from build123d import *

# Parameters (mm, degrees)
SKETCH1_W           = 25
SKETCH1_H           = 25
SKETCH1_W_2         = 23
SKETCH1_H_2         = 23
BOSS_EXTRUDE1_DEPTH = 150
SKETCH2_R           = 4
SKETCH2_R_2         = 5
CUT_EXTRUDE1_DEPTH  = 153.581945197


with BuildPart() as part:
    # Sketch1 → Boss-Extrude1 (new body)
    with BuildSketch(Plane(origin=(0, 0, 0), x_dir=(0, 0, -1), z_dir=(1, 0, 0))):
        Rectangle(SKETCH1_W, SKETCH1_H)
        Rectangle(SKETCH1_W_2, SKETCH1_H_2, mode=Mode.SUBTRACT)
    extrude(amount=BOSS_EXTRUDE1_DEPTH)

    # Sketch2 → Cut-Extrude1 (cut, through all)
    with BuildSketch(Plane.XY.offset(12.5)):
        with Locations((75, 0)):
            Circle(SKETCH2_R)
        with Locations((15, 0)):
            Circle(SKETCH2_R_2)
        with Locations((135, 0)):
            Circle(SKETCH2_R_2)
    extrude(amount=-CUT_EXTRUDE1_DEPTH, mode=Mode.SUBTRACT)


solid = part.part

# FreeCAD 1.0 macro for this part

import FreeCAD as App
import Part
import Sketcher
from FreeCAD import Vector
Q = App.Units.Quantity

doc = App.newDocument("Part")
params = doc.addObject("Spreadsheet::Sheet", "Params")
for row, (alias, value) in enumerate([
    ("sketch1_width", "25 mm"),
    ("sketch1_width2", "23 mm"),
    ("pad1_length", "150 mm"),
    ("sketch2_diameter", "8 mm"),
    ("sketch2_diameter2", "10 mm"),
], start=1):
    params.set(f"A{row}", alias)
    params.set(f"B{row}", "=" + value)
    params.setAlias(f"B{row}", alias)

body = doc.addObject("PartDesign::Body", "Body")

sketch1 = doc.addObject("Sketcher::SketchObject", "Sketch")
body.addObject(sketch1)
sketch1.AttachmentSupport = (doc.YZ_Plane, [""])
sketch1.MapMode = "FlatFace"
sketch1.addGeometry(Part.LineSegment(Vector(12.5, 12.5, 0), Vector(-12.5, 12.5, 0)), False)
sketch1.addGeometry(Part.LineSegment(Vector(-12.5, 12.5, 0), Vector(-12.5, -12.5, 0)), False)
sketch1.addGeometry(Part.LineSegment(Vector(-12.5, -12.5, 0), Vector(12.5, -12.5, 0)), False)
sketch1.addGeometry(Part.LineSegment(Vector(12.5, -12.5, 0), Vector(12.5, 12.5, 0)), False)
sketch1.addGeometry(Part.LineSegment(Vector(-11.5, -11.5, 0), Vector(-11.5, 11.5, 0)), False)
sketch1.addGeometry(Part.LineSegment(Vector(-11.5, 11.5, 0), Vector(11.5, 11.5, 0)), False)
sketch1.addGeometry(Part.LineSegment(Vector(11.5, 11.5, 0), Vector(11.5, -11.5, 0)), False)
sketch1.addGeometry(Part.LineSegment(Vector(11.5, -11.5, 0), Vector(-11.5, -11.5, 0)), False)
sketch1.addConstraint(Sketcher.Constraint("Coincident", 0, 2, 1, 1))
sketch1.addConstraint(Sketcher.Constraint("Coincident", 1, 2, 2, 1))
sketch1.addConstraint(Sketcher.Constraint("Coincident", 2, 2, 3, 1))
sketch1.addConstraint(Sketcher.Constraint("Coincident", 3, 2, 0, 1))
sketch1.addConstraint(Sketcher.Constraint("Coincident", 4, 2, 5, 1))
sketch1.addConstraint(Sketcher.Constraint("Coincident", 5, 2, 6, 1))
sketch1.addConstraint(Sketcher.Constraint("Coincident", 6, 2, 7, 1))
sketch1.addConstraint(Sketcher.Constraint("Coincident", 7, 2, 4, 1))
sketch1.addConstraint(Sketcher.Constraint("Horizontal", 0))
sketch1.addConstraint(Sketcher.Constraint("Vertical", 1))
sketch1.addConstraint(Sketcher.Constraint("Horizontal", 2))
sketch1.addConstraint(Sketcher.Constraint("Vertical", 3))
sketch1.addConstraint(Sketcher.Constraint("Vertical", 4))
sketch1.addConstraint(Sketcher.Constraint("Horizontal", 5))
sketch1.addConstraint(Sketcher.Constraint("Vertical", 6))
sketch1.addConstraint(Sketcher.Constraint("Horizontal", 7))
sketch1.addConstraint(Sketcher.Constraint("Symmetric", 0, 2, 2, 2, -1, 1))
sketch1.addConstraint(Sketcher.Constraint("Symmetric", 4, 2, 6, 2, -1, 1))
sketch1.addConstraint(Sketcher.Constraint("Equal", 2, 1))
sketch1.addConstraint(Sketcher.Constraint("Equal", 7, 4))
sketch1.addConstraint(Sketcher.Constraint("DistanceX", 0, 2, 0, 1, Q("25 mm")))
sketch1.addConstraint(Sketcher.Constraint("DistanceX", 5, 1, 5, 2, Q("23 mm")))
sketch1.setExpression("Constraints[20]", "Params.sketch1_width")
sketch1.setExpression("Constraints[21]", "Params.sketch1_width2")
pad1 = doc.addObject("PartDesign::Pad", "Pad")
body.addObject(pad1)
pad1.Profile = sketch1
pad1.setExpression("Length", "Params.pad1_length")

sketch2 = doc.addObject("Sketcher::SketchObject", "Sketch001")
body.addObject(sketch2)
sketch2.AttachmentSupport = (doc.XY_Plane, [""])
sketch2.MapMode = "FlatFace"
sketch2.AttachmentOffset = App.Placement(Vector(0, 0, 12.5), App.Rotation())
sketch2.addGeometry(Part.Circle(Vector(75, 0, 0), Vector(0, 0, 1), 4), False)
sketch2.addGeometry(Part.Circle(Vector(15, 0, 0), Vector(0, 0, 1), 5), False)
sketch2.addGeometry(Part.Circle(Vector(135, 0, 0), Vector(0, 0, 1), 5), False)
sketch2.addConstraint(Sketcher.Constraint("Equal", 1, 2))
sketch2.addConstraint(Sketcher.Constraint("PointOnObject", 0, 3, -1))
sketch2.addConstraint(Sketcher.Constraint("PointOnObject", 1, 3, -1))
sketch2.addConstraint(Sketcher.Constraint("PointOnObject", 2, 3, -1))
sketch2.addConstraint(Sketcher.Constraint("Diameter", 0, Q("8 mm")))
sketch2.addConstraint(Sketcher.Constraint("Diameter", 1, Q("10 mm")))
sketch2.addConstraint(Sketcher.Constraint("DistanceX", -1, 1, 0, 3, Q("75 mm")))
sketch2.addConstraint(Sketcher.Constraint("DistanceX", -1, 1, 1, 3, Q("15 mm")))
sketch2.addConstraint(Sketcher.Constraint("DistanceX", -1, 1, 2, 3, Q("135 mm")))
sketch2.setExpression("Constraints[4]", "Params.sketch2_diameter")
sketch2.setExpression("Constraints[5]", "Params.sketch2_diameter2")
pocket1 = doc.addObject("PartDesign::Pocket", "Pocket")
body.addObject(pocket1)
pocket1.Profile = sketch2
pocket1.Type = "ThroughAll"

doc.recompute()
